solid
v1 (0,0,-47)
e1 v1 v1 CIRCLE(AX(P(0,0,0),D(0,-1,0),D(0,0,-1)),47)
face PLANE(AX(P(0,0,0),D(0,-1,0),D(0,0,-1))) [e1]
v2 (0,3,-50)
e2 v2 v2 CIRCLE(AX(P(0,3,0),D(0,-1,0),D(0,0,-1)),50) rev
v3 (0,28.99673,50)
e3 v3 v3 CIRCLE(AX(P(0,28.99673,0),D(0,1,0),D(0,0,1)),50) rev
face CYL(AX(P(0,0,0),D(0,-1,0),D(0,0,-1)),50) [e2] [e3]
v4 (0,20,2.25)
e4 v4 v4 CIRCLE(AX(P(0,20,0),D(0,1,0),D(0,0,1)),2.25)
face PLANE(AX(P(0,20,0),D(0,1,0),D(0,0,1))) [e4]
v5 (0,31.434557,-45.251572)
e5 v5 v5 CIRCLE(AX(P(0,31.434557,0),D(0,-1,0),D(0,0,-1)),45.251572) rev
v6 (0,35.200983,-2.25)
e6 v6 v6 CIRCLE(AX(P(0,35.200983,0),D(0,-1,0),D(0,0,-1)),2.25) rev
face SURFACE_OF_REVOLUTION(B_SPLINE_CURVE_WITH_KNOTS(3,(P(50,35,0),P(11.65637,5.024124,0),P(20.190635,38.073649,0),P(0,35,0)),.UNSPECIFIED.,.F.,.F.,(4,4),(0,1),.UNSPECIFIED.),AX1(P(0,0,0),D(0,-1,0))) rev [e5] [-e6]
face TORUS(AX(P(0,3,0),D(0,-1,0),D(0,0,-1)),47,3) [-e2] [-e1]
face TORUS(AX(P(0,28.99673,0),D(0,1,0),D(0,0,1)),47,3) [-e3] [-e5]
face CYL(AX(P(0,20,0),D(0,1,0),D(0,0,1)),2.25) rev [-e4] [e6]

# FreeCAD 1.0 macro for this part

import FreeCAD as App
import Part
import Sketcher

V = App.Vector
Q = App.Units.Quantity


def edges_at(feature, points):
    """Names of the edges that pass closest to the given points."""
    edges = feature.Shape.Edges
    near = lambda p: min(range(len(edges)), key=lambda i: edges[i].distToShape(Part.Vertex(*p))[0])
    return sorted({f"Edge{near(p) + 1}" for p in points})

doc = App.newDocument("Part")
body = doc.addObject("PartDesign::Body", "Body")

# Sketch on XY plane
sketch1 = body.newObject("Sketcher::SketchObject", "Sketch")
sketch1.AttachmentSupport = (doc.getObject("XY_Plane"), [""])
sketch1.MapMode = "FlatFace"
sketch1.addGeometry([
    Part.LineSegment(V(0, 0, 0), V(50, 0, 0)),
    Part.LineSegment(V(50, 0, 0), V(50, 35, 0)),
    Part.BSplineCurve([V(0, 35, 0), V(20.190635, 38.073649, 0), V(11.65637, 5.024124, 0), V(50, 35, 0)], [4, 4], [0, 1], False, 3, [1, 1, 1, 1], False),
    Part.LineSegment(V(0, 35, 0), V(0, 0, 0)),
], False)
sketch1.addConstraint([
    Sketcher.Constraint("Block", 2),
    Sketcher.Constraint("Coincident", 0, 2, 1, 1),
    Sketcher.Constraint("Coincident", 1, 2, 2, 2),
    Sketcher.Constraint("Coincident", 2, 1, 3, 1),
    Sketcher.Constraint("Coincident", 3, 2, 0, 1),
    Sketcher.Constraint("Horizontal", 0),
    Sketcher.Constraint("Vertical", 1),
    Sketcher.Constraint("Vertical", 3),
    Sketcher.Constraint("PointOnObject", 0, 2, -1),
])
revolution = body.newObject("PartDesign::Revolution", "Revolution")
revolution.Profile = sketch1
revolution.ReferenceAxis = (sketch1, ["V_Axis"])
revolution.Angle = 360
doc.recompute()

fillet = body.newObject("PartDesign::Fillet", "Fillet")
fillet.Base = (revolution, edges_at(revolution, [(0, 35, 50), (0, 0, 50)]))
fillet.Radius = 3

# Sketch on XZ plane
sketch2 = body.newObject("Sketcher::SketchObject", "Sketch001")
sketch2.AttachmentSupport = (doc.getObject("XZ_Plane"), [""])
sketch2.MapMode = "FlatFace"
sketch2.AttachmentOffset = App.Placement(V(0, 0, -50), App.Rotation())
sketch2.addGeometry(Part.Circle(V(0, 0, 0), V(0, 0, 1), 2.25), False)
sketch2.addConstraint([
    Sketcher.Constraint("Coincident", 0, 3, -1, 1),
    Sketcher.Constraint("Diameter", 0, Q("4.5 mm")),
])
pocket1 = body.newObject("PartDesign::Pocket", "Pocket")
pocket1.Profile = sketch2
pocket1.Length = 30
pocket1.Reversed = True

doc.recompute()
